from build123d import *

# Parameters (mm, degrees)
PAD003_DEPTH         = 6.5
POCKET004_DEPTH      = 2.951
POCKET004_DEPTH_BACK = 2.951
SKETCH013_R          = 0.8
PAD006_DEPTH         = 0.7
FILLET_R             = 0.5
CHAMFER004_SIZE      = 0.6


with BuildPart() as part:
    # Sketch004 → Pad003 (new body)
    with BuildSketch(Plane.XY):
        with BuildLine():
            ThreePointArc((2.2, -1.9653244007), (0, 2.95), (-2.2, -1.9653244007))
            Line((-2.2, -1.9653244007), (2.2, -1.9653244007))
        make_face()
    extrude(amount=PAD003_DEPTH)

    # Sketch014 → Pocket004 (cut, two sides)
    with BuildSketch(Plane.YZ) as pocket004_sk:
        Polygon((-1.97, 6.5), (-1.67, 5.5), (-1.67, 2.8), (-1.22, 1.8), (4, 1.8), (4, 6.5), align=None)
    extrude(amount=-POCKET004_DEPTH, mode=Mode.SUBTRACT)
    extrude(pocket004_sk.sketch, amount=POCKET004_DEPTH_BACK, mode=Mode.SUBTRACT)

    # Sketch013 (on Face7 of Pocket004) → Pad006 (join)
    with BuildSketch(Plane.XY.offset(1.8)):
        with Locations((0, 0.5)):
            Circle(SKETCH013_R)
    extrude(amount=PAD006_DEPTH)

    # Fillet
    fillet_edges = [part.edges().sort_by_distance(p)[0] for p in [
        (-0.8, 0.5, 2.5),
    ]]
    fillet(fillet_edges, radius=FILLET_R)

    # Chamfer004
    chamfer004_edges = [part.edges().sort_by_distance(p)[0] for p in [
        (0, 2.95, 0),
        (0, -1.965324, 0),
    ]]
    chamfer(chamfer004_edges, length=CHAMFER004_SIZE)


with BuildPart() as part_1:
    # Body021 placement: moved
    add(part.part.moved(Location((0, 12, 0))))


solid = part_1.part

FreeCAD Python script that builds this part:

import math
import FreeCAD as App
import Part
import Sketcher


def edges_at(feature, points):
    """Names of the edges that pass closest to the given points."""
    edges = feature.Shape.Edges
    near = lambda p: min(range(len(edges)), key=lambda i: edges[i].distToShape(Part.Vertex(*p))[0])
    return sorted({f"Edge{near(p) + 1}" for p in points})


def add_polygon(sketch, points):
    """Adds a closed chain of lines whose ends are joined by coincident constraints."""
    first, n = sketch.GeometryCount, len(points)
    for a, b in zip(points, points[1:] + points[:1]):
        sketch.addGeometry(Part.LineSegment(App.Vector(*a, 0), App.Vector(*b, 0)), False)
    for i in range(n):
        sketch.addConstraint(Sketcher.Constraint("Coincident", first + i, 2, first + (i + 1) % n, 1))

doc = App.newDocument("Part")
body = doc.addObject("PartDesign::Body", "Body")

# Sketch on XY plane
sketch1 = body.newObject("Sketcher::SketchObject", "Sketch")
sketch1.AttachmentSupport = (doc.getObject("XY_Plane"), [""])
sketch1.MapMode = "FlatFace"
sketch1.addGeometry(Part.ArcOfCircle(Part.Circle(App.Vector(0, 0, 0), App.Vector(0, 0, 1), 3), math.radians(-42), math.radians(222)), False)
sketch1.addGeometry(Part.LineSegment(App.Vector(-2.2, -2, 0), App.Vector(2.2, -2, 0)), False)
sketch1.addConstraint(Sketcher.Constraint("Coincident", 0, 1, 1, 2))
sketch1.addConstraint(Sketcher.Constraint("Coincident", 1, 1, 0, 2))
sketch1.addConstraint(Sketcher.Constraint("Horizontal", 1))
sketch1.addConstraint(Sketcher.Constraint("Coincident", 0, 3, -1, 1))
sketch1.addConstraint(Sketcher.Constraint("Radius", 0, 2.95))
sketch1.addConstraint(Sketcher.Constraint("DistanceX", 1, 1, 1, 2, 4.4))
pad1 = body.newObject("PartDesign::Pad", "Pad")
pad1.Profile = sketch1
pad1.Length = 6.5

# Sketch on YZ plane
sketch2 = body.newObject("Sketcher::SketchObject", "Sketch001")
sketch2.AttachmentSupport = (doc.getObject("YZ_Plane"), [""])
sketch2.MapMode = "FlatFace"
add_polygon(sketch2, [(-2, 6.5), (-1.7, 5.5), (-1.7, 2.8), (-1.2, 1.8), (4, 1.8), (4, 6.5)])  # lines 0-5
sketch2.addConstraint(Sketcher.Constraint("Vertical", 1))
sketch2.addConstraint(Sketcher.Constraint("Horizontal", 3))
sketch2.addConstraint(Sketcher.Constraint("Vertical", 4))
sketch2.addConstraint(Sketcher.Constraint("Horizontal", 5))
sketch2.addConstraint(Sketcher.Constraint("DistanceY", 1, 2, 1, 1, 2.7))
sketch2.addConstraint(Sketcher.Constraint("DistanceY", 4, 1, 4, 2, 4.7))
sketch2.addConstraint(Sketcher.Constraint("DistanceX", -1, 1, 3, 2, 4.0))
sketch2.addConstraint(Sketcher.Constraint("DistanceY", 2, 2, 1, 2, 1.0))
sketch2.addConstraint(Sketcher.Constraint("DistanceX", 3, 1, 3, 2, 5.22))
sketch2.addConstraint(Sketcher.Constraint("DistanceX", 5, 2, 5, 1, 5.97))
sketch2.addConstraint(Sketcher.Constraint("DistanceY", -1, 1, 0, 2, 5.5))
sketch2.addConstraint(Sketcher.Constraint("DistanceX", 5, 2, 0, 2, 0.3))
pocket1 = body.newObject("PartDesign::Pocket", "Pocket")
pocket1.Profile = sketch2
pocket1.Type = "ThroughAll"
pocket1.Midplane = True

# Sketch on XY plane
sketch3 = body.newObject("Sketcher::SketchObject", "Sketch002")
sketch3.AttachmentSupport = (doc.getObject("XY_Plane"), [""])
sketch3.MapMode = "FlatFace"
sketch3.AttachmentOffset = App.Placement(App.Vector(0, 0, 1.8), App.Rotation())
sketch3.addGeometry(Part.Circle(App.Vector(0, 0.5, 0), App.Vector(0, 0, 1), 0.8), False)
sketch3.addConstraint(Sketcher.Constraint("PointOnObject", 0, 3, -2))
sketch3.addConstraint(Sketcher.Constraint("Diameter", 0, 1.6))
sketch3.addConstraint(Sketcher.Constraint("DistanceY", -1, 1, 0, 3, 0.5))
pad2 = body.newObject("PartDesign::Pad", "Pad001")
pad2.Profile = sketch3
pad2.Length = 0.7
doc.recompute()

fillet = body.newObject("PartDesign::Fillet", "Fillet")
fillet.Base = (pad2, edges_at(pad2, [(-0.8, 0.5, 2.5)]))
fillet.Radius = 0.5
doc.recompute()

chamfer = body.newObject("PartDesign::Chamfer", "Chamfer")
chamfer.Base = (fillet, edges_at(fillet, [(0, 2.95, 0), (0, -1.965, 0)]))
chamfer.Size = 0.6
body2 = doc.addObject("PartDesign::Body", "Body001")
doc.recompute()

body.Placement = App.Placement(App.Vector(0, 12, 0), App.Rotation(App.Vector(0, 0, 1), 0))
boolean = body2.newObject("PartDesign::Boolean", "Boolean")
boolean.Type = "Fuse"
boolean.addObjects([body])

doc.recompute()
